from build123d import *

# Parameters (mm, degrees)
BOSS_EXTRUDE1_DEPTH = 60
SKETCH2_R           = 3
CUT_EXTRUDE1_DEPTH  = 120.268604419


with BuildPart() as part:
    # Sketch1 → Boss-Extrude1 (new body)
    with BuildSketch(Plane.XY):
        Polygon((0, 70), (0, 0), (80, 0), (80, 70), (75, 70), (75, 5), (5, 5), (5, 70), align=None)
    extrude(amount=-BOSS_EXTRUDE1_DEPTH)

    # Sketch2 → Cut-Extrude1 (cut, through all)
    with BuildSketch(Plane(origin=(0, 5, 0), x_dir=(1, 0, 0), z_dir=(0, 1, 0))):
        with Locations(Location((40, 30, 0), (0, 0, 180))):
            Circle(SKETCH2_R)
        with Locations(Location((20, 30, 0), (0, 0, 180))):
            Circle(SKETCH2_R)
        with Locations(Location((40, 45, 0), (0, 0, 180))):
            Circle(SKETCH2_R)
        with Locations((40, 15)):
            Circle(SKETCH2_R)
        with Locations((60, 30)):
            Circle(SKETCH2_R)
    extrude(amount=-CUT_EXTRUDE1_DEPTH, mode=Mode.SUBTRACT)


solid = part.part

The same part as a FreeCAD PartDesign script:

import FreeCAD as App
import Part
import Sketcher

V = App.Vector

doc = App.newDocument("Part")
body = doc.addObject("PartDesign::Body", "Body")

sketch1 = body.newObject("Sketcher::SketchObject", "Sketch")
sketch1.AttachmentSupport = (doc.getObject("XY_Plane"), [""])
sketch1.MapMode = "FlatFace"
sketch1.addGeometry([
    Part.LineSegment(V(0, 70, 0), V(0, 0, 0)),
    Part.LineSegment(V(0, 0, 0), V(80, 0, 0)),
    Part.LineSegment(V(80, 0, 0), V(80, 70, 0)),
    Part.LineSegment(V(80, 70, 0), V(75, 70, 0)),
    Part.LineSegment(V(75, 70, 0), V(75, 5, 0)),
    Part.LineSegment(V(75, 5, 0), V(5, 5, 0)),
    Part.LineSegment(V(5, 5, 0), V(5, 70, 0)),
    Part.LineSegment(V(5, 70, 0), V(0, 70, 0)),
], False)
sketch1.addConstraint([
    Sketcher.Constraint("Coincident", 0, 2, 1, 1),
    Sketcher.Constraint("Coincident", 1, 2, 2, 1),
    Sketcher.Constraint("Coincident", 2, 2, 3, 1),
    Sketcher.Constraint("Coincident", 3, 2, 4, 1),
    Sketcher.Constraint("Coincident", 4, 2, 5, 1),
    Sketcher.Constraint("Coincident", 5, 2, 6, 1),
    Sketcher.Constraint("Coincident", 6, 2, 7, 1),
    Sketcher.Constraint("Coincident", 7, 2, 0, 1),
    Sketcher.Constraint("Vertical", 0),
    Sketcher.Constraint("Horizontal", 1),
    Sketcher.Constraint("Vertical", 2),
    Sketcher.Constraint("Horizontal", 3),
    Sketcher.Constraint("Vertical", 4),
    Sketcher.Constraint("Horizontal", 5),
    Sketcher.Constraint("Vertical", 6),
    Sketcher.Constraint("Horizontal", 7),
    Sketcher.Constraint("Coincident", 0, 2, -1, 1),
    Sketcher.Constraint("Horizontal", 3, 2, 6, 2),
    Sketcher.Constraint("Equal", 3, 7),
    Sketcher.Constraint("Equal", 5, 0),
    Sketcher.Constraint("DistanceX", 1, 1, 1, 2, 80.0),
    Sketcher.Constraint("DistanceX", 3, 2, 3, 1, 5.0),
    Sketcher.Constraint("DistanceY", 4, 2, 4, 1, 65.0),
])
pad1 = body.newObject("PartDesign::Pad", "Pad")
pad1.Profile = sketch1
pad1.Length = 60
pad1.Reversed = True

sketch2 = body.newObject("Sketcher::SketchObject", "Sketch001")
sketch2.AttachmentSupport = (doc.getObject("XZ_Plane"), [""])
sketch2.MapMode = "FlatFace"
sketch2.AttachmentOffset = App.Placement(V(0, 0, -5), App.Rotation())
sketch2.addGeometry([
    Part.Circle(V(40, -30, 0), V(0, 0, 1), 3),
    Part.Circle(V(20, -30, 0), V(0, 0, 1), 3),
    Part.Circle(V(40, -45, 0), V(0, 0, 1), 3),
    Part.Circle(V(40, -15, 0), V(0, 0, 1), 3),
    Part.Circle(V(60, -30, 0), V(0, 0, 1), 3),
], False)
sketch2.addConstraint([
    Sketcher.Constraint("Equal", 0, 1),
    Sketcher.Constraint("Equal", 1, 2),
    Sketcher.Constraint("Equal", 2, 3),
    Sketcher.Constraint("Equal", 3, 4),
    Sketcher.Constraint("Horizontal", 0, 3, 1, 3),
    Sketcher.Constraint("Horizontal", 1, 3, 4, 3),
    Sketcher.Constraint("Vertical", 0, 3, 2, 3),
    Sketcher.Constraint("Vertical", 2, 3, 3, 3),
    Sketcher.Constraint("Diameter", 0, 6.0),
    Sketcher.Constraint("DistanceX", -1, 1, 0, 3, 40.0),
    Sketcher.Constraint("DistanceY", 0, 3, -1, 1, 30.0),
    Sketcher.Constraint("DistanceX", -1, 1, 1, 3, 20.0),
    Sketcher.Constraint("DistanceY", 2, 3, -1, 1, 45.0),
    Sketcher.Constraint("DistanceY", 3, 3, -1, 1, 15.0),
    Sketcher.Constraint("DistanceX", -1, 1, 4, 3, 60.0),
])
pocket1 = body.newObject("PartDesign::Pocket", "Pocket")
pocket1.Profile = sketch2
pocket1.Type = "ThroughAll"
pocket1.Reversed = True

doc.recompute()
